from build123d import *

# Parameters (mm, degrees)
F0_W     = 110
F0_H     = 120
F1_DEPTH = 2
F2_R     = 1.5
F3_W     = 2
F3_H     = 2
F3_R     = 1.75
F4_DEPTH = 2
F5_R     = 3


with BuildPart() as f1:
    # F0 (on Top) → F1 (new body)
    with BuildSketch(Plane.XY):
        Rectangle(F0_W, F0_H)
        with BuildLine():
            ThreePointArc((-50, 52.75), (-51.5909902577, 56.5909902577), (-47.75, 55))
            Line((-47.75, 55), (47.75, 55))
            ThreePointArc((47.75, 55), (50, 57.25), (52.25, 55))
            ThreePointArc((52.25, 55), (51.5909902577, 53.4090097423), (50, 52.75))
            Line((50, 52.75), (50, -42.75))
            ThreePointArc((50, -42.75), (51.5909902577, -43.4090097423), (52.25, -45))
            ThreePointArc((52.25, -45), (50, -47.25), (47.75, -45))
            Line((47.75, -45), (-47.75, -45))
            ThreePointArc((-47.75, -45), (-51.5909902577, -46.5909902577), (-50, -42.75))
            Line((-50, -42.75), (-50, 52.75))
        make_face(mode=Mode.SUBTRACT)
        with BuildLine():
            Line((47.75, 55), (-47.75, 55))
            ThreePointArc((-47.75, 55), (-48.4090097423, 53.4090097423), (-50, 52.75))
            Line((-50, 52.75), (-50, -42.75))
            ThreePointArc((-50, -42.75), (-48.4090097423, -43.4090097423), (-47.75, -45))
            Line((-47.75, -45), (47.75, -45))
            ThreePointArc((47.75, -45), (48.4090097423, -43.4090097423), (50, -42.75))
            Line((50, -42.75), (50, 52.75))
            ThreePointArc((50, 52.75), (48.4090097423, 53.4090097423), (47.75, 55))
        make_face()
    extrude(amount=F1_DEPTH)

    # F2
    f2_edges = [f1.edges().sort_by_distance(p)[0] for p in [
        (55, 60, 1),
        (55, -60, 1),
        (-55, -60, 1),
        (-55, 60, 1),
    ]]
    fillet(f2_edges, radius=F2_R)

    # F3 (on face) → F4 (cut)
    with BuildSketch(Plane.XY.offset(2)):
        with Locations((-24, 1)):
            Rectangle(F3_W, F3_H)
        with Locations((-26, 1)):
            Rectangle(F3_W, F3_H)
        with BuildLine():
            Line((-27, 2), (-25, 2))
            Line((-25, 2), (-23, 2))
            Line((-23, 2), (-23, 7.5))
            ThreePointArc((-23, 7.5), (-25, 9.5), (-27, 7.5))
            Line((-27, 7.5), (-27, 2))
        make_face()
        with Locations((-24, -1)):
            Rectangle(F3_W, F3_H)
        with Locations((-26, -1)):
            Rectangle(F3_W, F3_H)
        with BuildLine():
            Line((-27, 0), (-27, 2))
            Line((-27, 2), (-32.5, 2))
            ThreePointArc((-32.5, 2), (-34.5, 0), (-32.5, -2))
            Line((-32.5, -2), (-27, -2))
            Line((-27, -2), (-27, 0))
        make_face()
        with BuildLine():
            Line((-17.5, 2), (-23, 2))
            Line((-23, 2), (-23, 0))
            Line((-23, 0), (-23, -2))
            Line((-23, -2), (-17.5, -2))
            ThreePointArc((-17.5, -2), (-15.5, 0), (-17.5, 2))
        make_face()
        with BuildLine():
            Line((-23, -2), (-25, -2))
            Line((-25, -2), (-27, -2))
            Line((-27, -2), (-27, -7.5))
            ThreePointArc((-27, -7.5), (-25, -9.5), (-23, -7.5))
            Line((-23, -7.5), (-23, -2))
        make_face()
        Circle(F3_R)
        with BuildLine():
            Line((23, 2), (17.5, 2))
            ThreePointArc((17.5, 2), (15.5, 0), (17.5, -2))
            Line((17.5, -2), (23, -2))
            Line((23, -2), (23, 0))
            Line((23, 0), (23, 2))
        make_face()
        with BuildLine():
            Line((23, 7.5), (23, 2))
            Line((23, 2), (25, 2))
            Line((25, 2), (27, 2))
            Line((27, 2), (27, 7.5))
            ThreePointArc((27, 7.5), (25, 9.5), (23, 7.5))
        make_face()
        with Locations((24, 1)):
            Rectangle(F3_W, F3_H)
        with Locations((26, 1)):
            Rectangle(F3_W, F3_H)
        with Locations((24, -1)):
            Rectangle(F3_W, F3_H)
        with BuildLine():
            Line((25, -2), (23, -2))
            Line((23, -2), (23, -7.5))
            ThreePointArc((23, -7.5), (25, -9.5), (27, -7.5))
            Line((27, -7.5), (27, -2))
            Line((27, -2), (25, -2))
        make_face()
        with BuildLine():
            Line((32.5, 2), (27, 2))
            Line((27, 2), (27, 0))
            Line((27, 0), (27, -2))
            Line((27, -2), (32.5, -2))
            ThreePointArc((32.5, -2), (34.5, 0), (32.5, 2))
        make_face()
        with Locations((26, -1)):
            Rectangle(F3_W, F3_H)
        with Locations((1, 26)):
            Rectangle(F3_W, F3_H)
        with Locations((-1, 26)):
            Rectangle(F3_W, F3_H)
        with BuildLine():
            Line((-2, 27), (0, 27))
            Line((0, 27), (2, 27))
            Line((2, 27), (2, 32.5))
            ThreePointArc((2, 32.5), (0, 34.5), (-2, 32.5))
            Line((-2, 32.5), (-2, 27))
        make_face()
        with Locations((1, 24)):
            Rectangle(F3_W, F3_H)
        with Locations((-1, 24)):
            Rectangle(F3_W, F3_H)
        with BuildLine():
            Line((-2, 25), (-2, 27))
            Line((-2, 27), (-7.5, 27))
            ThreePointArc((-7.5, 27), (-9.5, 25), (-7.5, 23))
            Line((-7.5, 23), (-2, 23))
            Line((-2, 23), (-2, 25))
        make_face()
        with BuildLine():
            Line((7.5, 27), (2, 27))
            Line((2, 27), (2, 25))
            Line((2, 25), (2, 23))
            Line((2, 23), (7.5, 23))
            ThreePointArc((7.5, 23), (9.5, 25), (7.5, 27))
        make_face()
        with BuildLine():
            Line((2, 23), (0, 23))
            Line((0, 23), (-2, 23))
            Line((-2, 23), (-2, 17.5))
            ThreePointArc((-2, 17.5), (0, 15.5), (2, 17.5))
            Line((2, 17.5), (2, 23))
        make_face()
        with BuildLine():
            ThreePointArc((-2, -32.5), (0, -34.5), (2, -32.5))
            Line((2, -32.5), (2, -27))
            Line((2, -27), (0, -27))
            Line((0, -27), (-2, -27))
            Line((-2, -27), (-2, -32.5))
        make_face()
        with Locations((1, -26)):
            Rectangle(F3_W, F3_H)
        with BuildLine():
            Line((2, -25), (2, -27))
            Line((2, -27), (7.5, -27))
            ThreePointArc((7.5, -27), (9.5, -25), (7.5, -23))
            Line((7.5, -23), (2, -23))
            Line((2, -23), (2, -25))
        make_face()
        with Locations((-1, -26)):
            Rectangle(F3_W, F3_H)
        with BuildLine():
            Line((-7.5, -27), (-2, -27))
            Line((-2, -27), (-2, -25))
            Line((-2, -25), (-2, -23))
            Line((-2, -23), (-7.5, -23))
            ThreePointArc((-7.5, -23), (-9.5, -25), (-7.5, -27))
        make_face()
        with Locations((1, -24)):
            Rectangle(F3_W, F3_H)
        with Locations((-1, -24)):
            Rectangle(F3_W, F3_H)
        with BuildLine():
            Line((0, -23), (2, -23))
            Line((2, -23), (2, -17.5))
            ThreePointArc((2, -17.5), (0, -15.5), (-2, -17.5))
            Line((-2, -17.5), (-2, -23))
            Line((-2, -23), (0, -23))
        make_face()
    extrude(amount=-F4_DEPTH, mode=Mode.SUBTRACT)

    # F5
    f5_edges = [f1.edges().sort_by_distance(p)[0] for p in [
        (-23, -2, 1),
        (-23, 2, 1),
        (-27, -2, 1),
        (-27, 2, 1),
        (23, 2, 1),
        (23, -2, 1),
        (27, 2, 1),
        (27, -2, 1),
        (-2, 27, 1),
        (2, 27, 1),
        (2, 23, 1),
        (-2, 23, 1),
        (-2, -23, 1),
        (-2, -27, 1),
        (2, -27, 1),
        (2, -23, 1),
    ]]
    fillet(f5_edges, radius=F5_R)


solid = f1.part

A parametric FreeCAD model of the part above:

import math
import FreeCAD as App
import Part
import Sketcher
Q = App.Units.Quantity


def edges_at(feature, points):
    """Names of the edges that pass closest to the given points."""
    edges = feature.Shape.Edges
    near = lambda p: min(range(len(edges)), key=lambda i: edges[i].distToShape(Part.Vertex(*p))[0])
    return sorted({f"Edge{near(p) + 1}" for p in points})

doc = App.newDocument("Part")
body = doc.addObject("PartDesign::Body", "Body")

# Sketch on XY plane
sketch1 = doc.addObject("Sketcher::SketchObject", "Sketch")
body.addObject(sketch1)
sketch1.AttachmentSupport = (doc.XY_Plane, [""])
sketch1.MapMode = "FlatFace"
sketch1.addGeometry(Part.LineSegment(App.Vector(-55, 60, 0), App.Vector(-55, -60, 0)), False)
sketch1.addGeometry(Part.LineSegment(App.Vector(-55, -60, 0), App.Vector(55, -60, 0)), False)
sketch1.addGeometry(Part.LineSegment(App.Vector(55, -60, 0), App.Vector(55, 60, 0)), False)
sketch1.addGeometry(Part.LineSegment(App.Vector(55, 60, 0), App.Vector(-55, 60, 0)), False)
sketch1.addGeometry(Part.ArcOfCircle(Part.Circle(App.Vector(-50, -45, 0), App.Vector(0, 0, 1), 2.25), math.radians(90), math.radians(360)), False)
sketch1.addGeometry(Part.ArcOfCircle(Part.Circle(App.Vector(-50, -45, 0), App.Vector(0, 0, 1), 2.25), math.radians(0), math.radians(90)), False)
sketch1.addGeometry(Part.ArcOfCircle(Part.Circle(App.Vector(50, -45, 0), App.Vector(0, 0, 1), 2.25), math.radians(180), math.radians(360)), False)
sketch1.addGeometry(Part.ArcOfCircle(Part.Circle(App.Vector(50, -45, 0), App.Vector(0, 0, 1), 2.25), math.radians(90), math.radians(180)), False)
sketch1.addGeometry(Part.ArcOfCircle(Part.Circle(App.Vector(50, -45, 0), App.Vector(0, 0, 1), 2.25), math.radians(0), math.radians(90)), False)
sketch1.addGeometry(Part.ArcOfCircle(Part.Circle(App.Vector(50, 55, 0), App.Vector(0, 0, 1), 2.25), math.radians(-90), math.radians(0)), False)
sketch1.addGeometry(Part.ArcOfCircle(Part.Circle(App.Vector(50, 55, 0), App.Vector(0, 0, 1), 2.25), math.radians(180), math.radians(270)), False)
sketch1.addGeometry(Part.ArcOfCircle(Part.Circle(App.Vector(50, 55, 0), App.Vector(0, 0, 1), 2.25), math.radians(0), math.radians(180)), False)
sketch1.addGeometry(Part.ArcOfCircle(Part.Circle(App.Vector(-50, 55, 0), App.Vector(0, 0, 1), 2.25), math.radians(0), math.radians(270)), False)
sketch1.addGeometry(Part.ArcOfCircle(Part.Circle(App.Vector(-50, 55, 0), App.Vector(0, 0, 1), 2.25), math.radians(-90), math.radians(0)), False)
sketch1.addConstraint(Sketcher.Constraint("Coincident", 0, 2, 1, 1))
sketch1.addConstraint(Sketcher.Constraint("Coincident", 1, 2, 2, 1))
sketch1.addConstraint(Sketcher.Constraint("Coincident", 2, 2, 3, 1))
sketch1.addConstraint(Sketcher.Constraint("Coincident", 3, 2, 0, 1))
sketch1.addConstraint(Sketcher.Constraint("Tangent", 4, 1, 5, 2))
sketch1.addConstraint(Sketcher.Constraint("Coincident", 5, 1, 4, 2))
sketch1.addConstraint(Sketcher.Constraint("Tangent", 6, 1, 7, 2))
sketch1.addConstraint(Sketcher.Constraint("Tangent", 7, 1, 8, 2))
sketch1.addConstraint(Sketcher.Constraint("Tangent", 8, 1, 6, 2))
sketch1.addConstraint(Sketcher.Constraint("Tangent", 9, 1, 10, 2))
sketch1.addConstraint(Sketcher.Constraint("Tangent", 10, 1, 11, 2))
sketch1.addConstraint(Sketcher.Constraint("Tangent", 11, 1, 9, 2))
sketch1.addConstraint(Sketcher.Constraint("Tangent", 12, 1, 13, 2))
sketch1.addConstraint(Sketcher.Constraint("Coincident", 13, 1, 12, 2))
sketch1.addConstraint(Sketcher.Constraint("Vertical", 0))
sketch1.addConstraint(Sketcher.Constraint("Horizontal", 1))
sketch1.addConstraint(Sketcher.Constraint("Vertical", 2))
sketch1.addConstraint(Sketcher.Constraint("Horizontal", 3))
sketch1.addConstraint(Sketcher.Constraint("Equal", 5, 6))
sketch1.addConstraint(Sketcher.Constraint("Equal", 8, 9))
sketch1.addConstraint(Sketcher.Constraint("Equal", 11, 12))
sketch1.addConstraint(Sketcher.Constraint("Symmetric", 0, 2, 2, 2, -1, 1))
sketch1.addConstraint(Sketcher.Constraint("Symmetric", 4, 3, 6, 3, -2))
sketch1.addConstraint(Sketcher.Constraint("Symmetric", 9, 3, 12, 3, -2))
sketch1.addConstraint(Sketcher.Constraint("Horizontal", 8, 3, 5, 1))
sketch1.addConstraint(Sketcher.Constraint("Horizontal", 5, 1, 6, 1))
sketch1.addConstraint(Sketcher.Constraint("Horizontal", 6, 1, 8, 1))
sketch1.addConstraint(Sketcher.Constraint("Horizontal", 13, 3, 10, 1))
sketch1.addConstraint(Sketcher.Constraint("Horizontal", 10, 1, 11, 1))
sketch1.addConstraint(Sketcher.Constraint("Horizontal", 11, 1, 12, 1))
sketch1.addConstraint(Sketcher.Constraint("Vertical", 8, 3, 9, 3))
sketch1.addConstraint(Sketcher.Constraint("Vertical", 13, 3, 4, 1))
sketch1.addConstraint(Sketcher.Constraint("Vertical", 11, 3, 7, 1))
sketch1.addConstraint(Sketcher.Constraint("Vertical", 7, 1, 9, 1))
sketch1.addConstraint(Sketcher.Constraint("Vertical", 4, 1, 13, 1))
sketch1.addConstraint(Sketcher.Constraint("DistanceX", 1, 1, 1, 2, Q("110 mm")))
sketch1.addConstraint(Sketcher.Constraint("DistanceY", 0, 2, 0, 1, Q("120 mm")))
sketch1.addConstraint(Sketcher.Constraint("Radius", 4, Q("2.25 mm")))
sketch1.addConstraint(Sketcher.Constraint("DistanceX", 4, 3, -1, 1, Q("50 mm")))
sketch1.addConstraint(Sketcher.Constraint("DistanceY", 4, 3, -1, 1, Q("45 mm")))
sketch1.addConstraint(Sketcher.Constraint("DistanceY", -1, 1, 9, 3, Q("55 mm")))
pad1 = doc.addObject("PartDesign::Pad", "Pad")
body.addObject(pad1)
pad1.Profile = sketch1
pad1.Length = 2
doc.recompute()

fillet = doc.addObject("PartDesign::Fillet", "Fillet")
body.addObject(fillet)
fillet.Base = (pad1, edges_at(pad1, [
    (55, 60, 1),
    (55, -60, 1),
    (-55, -60, 1),
    (-55, 60, 1),
]))
fillet.Radius = 1.5

# Sketch on XY plane
sketch2 = doc.addObject("Sketcher::SketchObject", "Sketch001")
body.addObject(sketch2)
sketch2.AttachmentSupport = (doc.XY_Plane, [""])
sketch2.MapMode = "FlatFace"
sketch2.AttachmentOffset = App.Placement(App.Vector(0, 0, 2), App.Rotation())
sketch2.addGeometry(Part.ArcOfCircle(Part.Circle(App.Vector(-25, 7.5, 0), App.Vector(0, 0, 1), 2), math.radians(0), math.radians(180)), False)
sketch2.addGeometry(Part.LineSegment(App.Vector(-27, 7.5, 0), App.Vector(-27, 2, 0)), False)
sketch2.addGeometry(Part.LineSegment(App.Vector(-27, 2, 0), App.Vector(-32.5, 2, 0)), False)
sketch2.addGeometry(Part.ArcOfCircle(Part.Circle(App.Vector(-32.5, 0, 0), App.Vector(0, 0, 1), 2), math.radians(90), math.radians(270)), False)
sketch2.addGeometry(Part.LineSegment(App.Vector(-32.5, -2, 0), App.Vector(-27, -2, 0)), False)
sketch2.addGeometry(Part.LineSegment(App.Vector(-27, -2, 0), App.Vector(-27, -7.5, 0)), False)
sketch2.addGeometry(Part.ArcOfCircle(Part.Circle(App.Vector(-25, -7.5, 0), App.Vector(0, 0, 1), 2), math.radians(180), math.radians(360)), False)
sketch2.addGeometry(Part.LineSegment(App.Vector(-23, -7.5, 0), App.Vector(-23, -2, 0)), False)
sketch2.addGeometry(Part.LineSegment(App.Vector(-23, -2, 0), App.Vector(-17.5, -2, 0)), False)
sketch2.addGeometry(Part.ArcOfCircle(Part.Circle(App.Vector(-17.5, 0, 0), App.Vector(0, 0, 1), 2), math.radians(-90), math.radians(90)), False)
sketch2.addGeometry(Part.LineSegment(App.Vector(-17.5, 2, 0), App.Vector(-23, 2, 0)), False)
sketch2.addGeometry(Part.LineSegment(App.Vector(-23, 2, 0), App.Vector(-23, 7.5, 0)), False)
sketch2.addGeometry(Part.Circle(App.Vector(0, 0, 0), App.Vector(0, 0, 1), 1.75), False)
sketch2.addGeometry(Part.LineSegment(App.Vector(27, -7.5, 0), App.Vector(27, -2, 0)), False)
sketch2.addGeometry(Part.LineSegment(App.Vector(27, -2, 0), App.Vector(32.5, -2, 0)), False)
sketch2.addGeometry(Part.ArcOfCircle(Part.Circle(App.Vector(32.5, 0, 0), App.Vector(0, 0, 1), 2), math.radians(-90), math.radians(90)), False)
sketch2.addGeometry(Part.LineSegment(App.Vector(32.5, 2, 0), App.Vector(27, 2, 0)), False)
sketch2.addGeometry(Part.LineSegment(App.Vector(27, 2, 0), App.Vector(27, 7.5, 0)), False)
sketch2.addGeometry(Part.ArcOfCircle(Part.Circle(App.Vector(25, 7.5, 0), App.Vector(0, 0, 1), 2), math.radians(0), math.radians(180)), False)
sketch2.addGeometry(Part.LineSegment(App.Vector(23, 7.5, 0), App.Vector(23, 2, 0)), False)
sketch2.addGeometry(Part.LineSegment(App.Vector(23, 2, 0), App.Vector(17.5, 2, 0)), False)
sketch2.addGeometry(Part.ArcOfCircle(Part.Circle(App.Vector(17.5, 0, 0), App.Vector(0, 0, 1), 2), math.radians(90), math.radians(270)), False)
sketch2.addGeometry(Part.LineSegment(App.Vector(17.5, -2, 0), App.Vector(23, -2, 0)), False)
sketch2.addGeometry(Part.LineSegment(App.Vector(23, -2, 0), App.Vector(23, -7.5, 0)), False)
sketch2.addGeometry(Part.ArcOfCircle(Part.Circle(App.Vector(25, -7.5, 0), App.Vector(0, 0, 1), 2), math.radians(180), math.radians(360)), False)
sketch2.addGeometry(Part.ArcOfCircle(Part.Circle(App.Vector(0, 32.5, 0), App.Vector(0, 0, 1), 2), math.radians(0), math.radians(180)), False)
sketch2.addGeometry(Part.LineSegment(App.Vector(-2, 32.5, 0), App.Vector(-2, 27, 0)), False)
sketch2.addGeometry(Part.LineSegment(App.Vector(-2, 27, 0), App.Vector(-7.5, 27, 0)), False)
sketch2.addGeometry(Part.ArcOfCircle(Part.Circle(App.Vector(-7.5, 25, 0), App.Vector(0, 0, 1), 2), math.radians(90), math.radians(270)), False)
sketch2.addGeometry(Part.LineSegment(App.Vector(-7.5, 23, 0), App.Vector(-2, 23, 0)), False)
sketch2.addGeometry(Part.LineSegment(App.Vector(-2, 23, 0), App.Vector(-2, 17.5, 0)), False)
sketch2.addGeometry(Part.ArcOfCircle(Part.Circle(App.Vector(0, 17.5, 0), App.Vector(0, 0, 1), 2), math.radians(180), math.radians(360)), False)
sketch2.addGeometry(Part.LineSegment(App.Vector(2, 17.5, 0), App.Vector(2, 23, 0)), False)
sketch2.addGeometry(Part.LineSegment(App.Vector(2, 23, 0), App.Vector(7.5, 23, 0)), False)
sketch2.addGeometry(Part.ArcOfCircle(Part.Circle(App.Vector(7.5, 25, 0), App.Vector(0, 0, 1), 2), math.radians(-90), math.radians(90)), False)
sketch2.addGeometry(Part.LineSegment(App.Vector(7.5, 27, 0), App.Vector(2, 27, 0)), False)
sketch2.addGeometry(Part.LineSegment(App.Vector(2, 27, 0), App.Vector(2, 32.5, 0)), False)
sketch2.addGeometry(Part.ArcOfCircle(Part.Circle(App.Vector(0, -32.5, 0), App.Vector(0, 0, 1), 2), math.radians(180), math.radians(360)), False)
sketch2.addGeometry(Part.LineSegment(App.Vector(2, -32.5, 0), App.Vector(2, -27, 0)), False)
sketch2.addGeometry(Part.LineSegment(App.Vector(2, -27, 0), App.Vector(7.5, -27, 0)), False)
sketch2.addGeometry(Part.ArcOfCircle(Part.Circle(App.Vector(7.5, -25, 0), App.Vector(0, 0, 1), 2), math.radians(-90), math.radians(90)), False)
sketch2.addGeometry(Part.LineSegment(App.Vector(7.5, -23, 0), App.Vector(2, -23, 0)), False)
sketch2.addGeometry(Part.LineSegment(App.Vector(2, -23, 0), App.Vector(2, -17.5, 0)), False)
sketch2.addGeometry(Part.ArcOfCircle(Part.Circle(App.Vector(0, -17.5, 0), App.Vector(0, 0, 1), 2), math.radians(0), math.radians(180)), False)
sketch2.addGeometry(Part.LineSegment(App.Vector(-2, -17.5, 0), App.Vector(-2, -23, 0)), False)
sketch2.addGeometry(Part.LineSegment(App.Vector(-2, -23, 0), App.Vector(-7.5, -23, 0)), False)
sketch2.addGeometry(Part.ArcOfCircle(Part.Circle(App.Vector(-7.5, -25, 0), App.Vector(0, 0, 1), 2), math.radians(90), math.radians(270)), False)
sketch2.addGeometry(Part.LineSegment(App.Vector(-7.5, -27, 0), App.Vector(-2, -27, 0)), False)
sketch2.addGeometry(Part.LineSegment(App.Vector(-2, -27, 0), App.Vector(-2, -32.5, 0)), False)
sketch2.addConstraint(Sketcher.Constraint("Tangent", 0, 2, 1, 1))
sketch2.addConstraint(Sketcher.Constraint("Coincident", 1, 2, 2, 1))
sketch2.addConstraint(Sketcher.Constraint("Tangent", 2, 2, 3, 1))
sketch2.addConstraint(Sketcher.Constraint("Tangent", 3, 2, 4, 1))
sketch2.addConstraint(Sketcher.Constraint("Coincident", 4, 2, 5, 1))
sketch2.addConstraint(Sketcher.Constraint("Tangent", 5, 2, 6, 1))
sketch2.addConstraint(Sketcher.Constraint("Tangent", 6, 2, 7, 1))
sketch2.addConstraint(Sketcher.Constraint("Coincident", 7, 2, 8, 1))
sketch2.addConstraint(Sketcher.Constraint("Tangent", 8, 2, 9, 1))
sketch2.addConstraint(Sketcher.Constraint("Tangent", 9, 2, 10, 1))
sketch2.addConstraint(Sketcher.Constraint("Coincident", 10, 2, 11, 1))
sketch2.addConstraint(Sketcher.Constraint("Tangent", 11, 2, 0, 1))
sketch2.addConstraint(Sketcher.Constraint("Coincident", 13, 2, 14, 1))
sketch2.addConstraint(Sketcher.Constraint("Tangent", 14, 2, 15, 1))
sketch2.addConstraint(Sketcher.Constraint("Tangent", 15, 2, 16, 1))
sketch2.addConstraint(Sketcher.Constraint("Coincident", 16, 2, 17, 1))
sketch2.addConstraint(Sketcher.Constraint("Tangent", 17, 2, 18, 1))
sketch2.addConstraint(Sketcher.Constraint("Tangent", 18, 2, 19, 1))
sketch2.addConstraint(Sketcher.Constraint("Coincident", 19, 2, 20, 1))
sketch2.addConstraint(Sketcher.Constraint("Tangent", 20, 2, 21, 1))
sketch2.addConstraint(Sketcher.Constraint("Tangent", 21, 2, 22, 1))
sketch2.addConstraint(Sketcher.Constraint("Coincident", 22, 2, 23, 1))
sketch2.addConstraint(Sketcher.Constraint("Tangent", 23, 2, 24, 1))
sketch2.addConstraint(Sketcher.Constraint("Tangent", 24, 2, 13, 1))
sketch2.addConstraint(Sketcher.Constraint("Tangent", 25, 2, 26, 1))
sketch2.addConstraint(Sketcher.Constraint("Coincident", 26, 2, 27, 1))
sketch2.addConstraint(Sketcher.Constraint("Tangent", 27, 2, 28, 1))
sketch2.addConstraint(Sketcher.Constraint("Tangent", 28, 2, 29, 1))
sketch2.addConstraint(Sketcher.Constraint("Coincident", 29, 2, 30, 1))
sketch2.addConstraint(Sketcher.Constraint("Tangent", 30, 2, 31, 1))
sketch2.addConstraint(Sketcher.Constraint("Tangent", 31, 2, 32, 1))
sketch2.addConstraint(Sketcher.Constraint("Coincident", 32, 2, 33, 1))
sketch2.addConstraint(Sketcher.Constraint("Tangent", 33, 2, 34, 1))
sketch2.addConstraint(Sketcher.Constraint("Tangent", 34, 2, 35, 1))
sketch2.addConstraint(Sketcher.Constraint("Coincident", 35, 2, 36, 1))
sketch2.addConstraint(Sketcher.Constraint("Tangent", 36, 2, 25, 1))
sketch2.addConstraint(Sketcher.Constraint("Tangent", 37, 2, 38, 1))
sketch2.addConstraint(Sketcher.Constraint("Coincident", 38, 2, 39, 1))
sketch2.addConstraint(Sketcher.Constraint("Tangent", 39, 2, 40, 1))
sketch2.addConstraint(Sketcher.Constraint("Tangent", 40, 2, 41, 1))
sketch2.addConstraint(Sketcher.Constraint("Coincident", 41, 2, 42, 1))
sketch2.addConstraint(Sketcher.Constraint("Tangent", 42, 2, 43, 1))
sketch2.addConstraint(Sketcher.Constraint("Tangent", 43, 2, 44, 1))
sketch2.addConstraint(Sketcher.Constraint("Coincident", 44, 2, 45, 1))
sketch2.addConstraint(Sketcher.Constraint("Tangent", 45, 2, 46, 1))
sketch2.addConstraint(Sketcher.Constraint("Tangent", 46, 2, 47, 1))
sketch2.addConstraint(Sketcher.Constraint("Coincident", 47, 2, 48, 1))
sketch2.addConstraint(Sketcher.Constraint("Tangent", 48, 2, 37, 1))
sketch2.addConstraint(Sketcher.Constraint("Vertical", 1))
sketch2.addConstraint(Sketcher.Constraint("Horizontal", 2))
sketch2.addConstraint(Sketcher.Constraint("Horizontal", 4))
sketch2.addConstraint(Sketcher.Constraint("Vertical", 5))
sketch2.addConstraint(Sketcher.Constraint("Vertical", 7))
sketch2.addConstraint(Sketcher.Constraint("Horizontal", 8))
sketch2.addConstraint(Sketcher.Constraint("Horizontal", 10))
sketch2.addConstraint(Sketcher.Constraint("Vertical", 11))
sketch2.addConstraint(Sketcher.Constraint("Vertical", 13))
sketch2.addConstraint(Sketcher.Constraint("Horizontal", 14))
sketch2.addConstraint(Sketcher.Constraint("Horizontal", 16))
sketch2.addConstraint(Sketcher.Constraint("Vertical", 17))
sketch2.addConstraint(Sketcher.Constraint("Vertical", 19))
sketch2.addConstraint(Sketcher.Constraint("Horizontal", 20))
sketch2.addConstraint(Sketcher.Constraint("Horizontal", 22))
sketch2.addConstraint(Sketcher.Constraint("Vertical", 23))
sketch2.addConstraint(Sketcher.Constraint("Vertical", 26))
sketch2.addConstraint(Sketcher.Constraint("Horizontal", 27))
sketch2.addConstraint(Sketcher.Constraint("Horizontal", 29))
sketch2.addConstraint(Sketcher.Constraint("Vertical", 30))
sketch2.addConstraint(Sketcher.Constraint("Vertical", 32))
sketch2.addConstraint(Sketcher.Constraint("Horizontal", 33))
sketch2.addConstraint(Sketcher.Constraint("Horizontal", 35))
sketch2.addConstraint(Sketcher.Constraint("Vertical", 36))
sketch2.addConstraint(Sketcher.Constraint("Vertical", 38))
sketch2.addConstraint(Sketcher.Constraint("Horizontal", 39))
sketch2.addConstraint(Sketcher.Constraint("Horizontal", 41))
sketch2.addConstraint(Sketcher.Constraint("Vertical", 42))
sketch2.addConstraint(Sketcher.Constraint("Vertical", 44))
sketch2.addConstraint(Sketcher.Constraint("Horizontal", 45))
sketch2.addConstraint(Sketcher.Constraint("Horizontal", 47))
sketch2.addConstraint(Sketcher.Constraint("Vertical", 48))
sketch2.addConstraint(Sketcher.Constraint("Coincident", 12, 3, -1, 1))
sketch2.addConstraint(Sketcher.Constraint("Equal", 0, 3))
sketch2.addConstraint(Sketcher.Constraint("Equal", 3, 6))
sketch2.addConstraint(Sketcher.Constraint("Equal", 6, 9))
sketch2.addConstraint(Sketcher.Constraint("Equal", 9, 15))
sketch2.addConstraint(Sketcher.Constraint("Equal", 15, 18))
sketch2.addConstraint(Sketcher.Constraint("Equal", 18, 21))
sketch2.addConstraint(Sketcher.Constraint("Equal", 21, 24))
sketch2.addConstraint(Sketcher.Constraint("Equal", 24, 25))
sketch2.addConstraint(Sketcher.Constraint("Equal", 25, 28))
sketch2.addConstraint(Sketcher.Constraint("Equal", 28, 31))
sketch2.addConstraint(Sketcher.Constraint("Equal", 31, 34))
sketch2.addConstraint(Sketcher.Constraint("Equal", 34, 37))
sketch2.addConstraint(Sketcher.Constraint("Equal", 37, 40))
sketch2.addConstraint(Sketcher.Constraint("Equal", 40, 43))
sketch2.addConstraint(Sketcher.Constraint("Equal", 43, 46))
sketch2.addConstraint(Sketcher.Constraint("Symmetric", 3, 3, 15, 3, -1, 1))
sketch2.addConstraint(Sketcher.Constraint("Symmetric", 6, 3, 18, 3, -1, 1))
sketch2.addConstraint(Sketcher.Constraint("Symmetric", 9, 3, 21, 3, -1, 1))
sketch2.addConstraint(Sketcher.Constraint("Symmetric", 0, 3, 24, 3, -1, 1))
sketch2.addConstraint(Sketcher.Constraint("Symmetric", 25, 3, 37, 3, -1, 1))
sketch2.addConstraint(Sketcher.Constraint("Symmetric", 28, 3, 40, 3, -1, 1))
sketch2.addConstraint(Sketcher.Constraint("Symmetric", 31, 3, 43, 3, -1, 1))
sketch2.addConstraint(Sketcher.Constraint("Symmetric", 34, 3, 46, 3, -1, 1))
sketch2.addConstraint(Sketcher.Constraint("Symmetric", 0, 3, 18, 3, -2))
sketch2.addConstraint(Sketcher.Constraint("Symmetric", 28, 3, 34, 3, -2))
sketch2.addConstraint(Sketcher.Constraint("PointOnObject", 3, 3, -1))
sketch2.addConstraint(Sketcher.Constraint("PointOnObject", 9, 3, -1))
sketch2.addConstraint(Sketcher.Constraint("PointOnObject", 25, 3, -2))
sketch2.addConstraint(Sketcher.Constraint("PointOnObject", 31, 3, -2))
sketch2.addConstraint(Sketcher.Constraint("Equal", 4, 8))
sketch2.addConstraint(Sketcher.Constraint("Equal", 22, 27))
sketch2.addConstraint(Sketcher.Constraint("Equal", 47, 1))
sketch2.addConstraint(Sketcher.Constraint("Equal", 23, 26))
sketch2.addConstraint(Sketcher.Constraint("Equal", 26, 30))
sketch2.addConstraint(Sketcher.Constraint("Radius", 0, Q("2 mm")))
sketch2.addConstraint(Sketcher.Constraint("Diameter", 12, Q("3.5 mm")))
sketch2.addConstraint(Sketcher.Constraint("DistanceX", 2, 2, 2, 1, Q("5.5 mm")))
sketch2.addConstraint(Sketcher.Constraint("DistanceX", 0, 3, -1, 1, Q("25 mm")))
sketch2.addConstraint(Sketcher.Constraint("DistanceY", -1, 1, 28, 3, Q("25 mm")))
pocket1 = doc.addObject("PartDesign::Pocket", "Pocket")
body.addObject(pocket1)
pocket1.Profile = sketch2
pocket1.Length = 2
doc.recompute()

fillet2 = doc.addObject("PartDesign::Fillet", "Fillet001")
body.addObject(fillet2)
fillet2.Base = (pocket1, edges_at(pocket1, [
    (-23, -2, 1),
    (-23, 2, 1),
    (-27, -2, 1),
    (-27, 2, 1),
    (23, 2, 1),
    (23, -2, 1),
    (27, 2, 1),
    (27, -2, 1),
    (-2, 27, 1),
    (2, 27, 1),
    (2, 23, 1),
    (-2, 23, 1),
    (-2, -23, 1),
    (-2, -27, 1),
    (2, -27, 1),
    (2, -23, 1),
]))
fillet2.Radius = 3

doc.recompute()
